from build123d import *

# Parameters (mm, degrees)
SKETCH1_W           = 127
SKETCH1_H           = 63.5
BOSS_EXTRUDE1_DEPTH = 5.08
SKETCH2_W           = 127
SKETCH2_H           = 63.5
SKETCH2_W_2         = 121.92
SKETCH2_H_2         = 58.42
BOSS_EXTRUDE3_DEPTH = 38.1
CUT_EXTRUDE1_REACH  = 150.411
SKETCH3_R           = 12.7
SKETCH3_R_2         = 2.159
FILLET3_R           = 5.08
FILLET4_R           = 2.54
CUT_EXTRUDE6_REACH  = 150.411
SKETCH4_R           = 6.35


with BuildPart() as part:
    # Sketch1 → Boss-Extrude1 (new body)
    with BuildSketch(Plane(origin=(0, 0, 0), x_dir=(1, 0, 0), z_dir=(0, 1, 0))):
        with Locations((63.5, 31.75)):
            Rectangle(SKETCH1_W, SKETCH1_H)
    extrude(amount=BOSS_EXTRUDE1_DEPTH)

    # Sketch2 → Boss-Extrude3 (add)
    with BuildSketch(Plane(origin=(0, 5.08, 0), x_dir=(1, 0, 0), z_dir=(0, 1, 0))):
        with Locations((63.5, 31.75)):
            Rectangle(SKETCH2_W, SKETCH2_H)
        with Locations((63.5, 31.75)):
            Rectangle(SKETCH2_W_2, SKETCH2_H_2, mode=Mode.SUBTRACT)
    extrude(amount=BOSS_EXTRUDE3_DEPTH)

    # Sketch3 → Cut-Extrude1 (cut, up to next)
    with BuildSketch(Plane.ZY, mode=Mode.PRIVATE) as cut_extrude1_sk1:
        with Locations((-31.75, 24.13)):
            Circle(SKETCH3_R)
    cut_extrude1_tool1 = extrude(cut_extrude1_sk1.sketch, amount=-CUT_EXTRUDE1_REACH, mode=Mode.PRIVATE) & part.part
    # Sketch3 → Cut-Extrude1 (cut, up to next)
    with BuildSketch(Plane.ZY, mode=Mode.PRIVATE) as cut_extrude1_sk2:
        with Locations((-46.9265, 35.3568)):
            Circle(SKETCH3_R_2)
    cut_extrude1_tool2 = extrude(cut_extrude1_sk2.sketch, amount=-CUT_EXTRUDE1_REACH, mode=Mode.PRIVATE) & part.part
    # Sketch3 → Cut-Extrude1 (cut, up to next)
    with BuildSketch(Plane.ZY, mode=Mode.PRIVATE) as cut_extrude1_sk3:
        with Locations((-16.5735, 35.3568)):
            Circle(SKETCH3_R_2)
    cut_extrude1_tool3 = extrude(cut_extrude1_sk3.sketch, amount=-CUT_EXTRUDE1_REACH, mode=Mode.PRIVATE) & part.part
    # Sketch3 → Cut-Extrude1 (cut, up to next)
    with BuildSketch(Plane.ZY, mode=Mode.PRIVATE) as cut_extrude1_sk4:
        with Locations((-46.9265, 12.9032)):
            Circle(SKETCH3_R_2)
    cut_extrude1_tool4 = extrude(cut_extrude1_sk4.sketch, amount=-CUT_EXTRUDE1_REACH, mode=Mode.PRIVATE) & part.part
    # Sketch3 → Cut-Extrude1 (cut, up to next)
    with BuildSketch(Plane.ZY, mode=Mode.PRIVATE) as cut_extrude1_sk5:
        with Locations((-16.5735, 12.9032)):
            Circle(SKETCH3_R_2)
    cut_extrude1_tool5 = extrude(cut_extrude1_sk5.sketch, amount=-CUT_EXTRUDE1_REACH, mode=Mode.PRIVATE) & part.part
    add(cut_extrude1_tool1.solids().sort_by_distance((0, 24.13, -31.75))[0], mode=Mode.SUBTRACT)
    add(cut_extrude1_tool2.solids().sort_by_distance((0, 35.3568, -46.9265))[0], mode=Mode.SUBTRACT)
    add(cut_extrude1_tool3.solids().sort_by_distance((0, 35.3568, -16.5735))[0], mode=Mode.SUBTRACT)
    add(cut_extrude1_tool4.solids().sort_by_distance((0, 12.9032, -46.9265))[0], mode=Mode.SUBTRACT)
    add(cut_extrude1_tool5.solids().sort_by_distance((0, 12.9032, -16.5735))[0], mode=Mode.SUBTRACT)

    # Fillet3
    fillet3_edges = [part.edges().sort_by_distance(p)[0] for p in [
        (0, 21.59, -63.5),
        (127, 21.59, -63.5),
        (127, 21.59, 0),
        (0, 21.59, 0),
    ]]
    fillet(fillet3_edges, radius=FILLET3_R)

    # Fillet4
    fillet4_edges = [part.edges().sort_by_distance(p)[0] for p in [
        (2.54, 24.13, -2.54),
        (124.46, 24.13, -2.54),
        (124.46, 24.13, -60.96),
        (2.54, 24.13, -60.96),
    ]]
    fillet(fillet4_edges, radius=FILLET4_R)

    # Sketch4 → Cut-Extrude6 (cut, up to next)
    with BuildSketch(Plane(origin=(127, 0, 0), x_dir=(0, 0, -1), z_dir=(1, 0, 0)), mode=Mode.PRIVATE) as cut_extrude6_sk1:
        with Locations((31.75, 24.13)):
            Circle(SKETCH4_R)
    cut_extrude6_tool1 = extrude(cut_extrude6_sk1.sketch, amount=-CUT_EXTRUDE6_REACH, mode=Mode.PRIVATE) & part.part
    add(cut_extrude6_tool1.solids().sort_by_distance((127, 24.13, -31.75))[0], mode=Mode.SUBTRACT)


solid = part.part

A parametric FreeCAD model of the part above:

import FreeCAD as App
import Part
import Sketcher
from FreeCAD import Vector
Q = App.Units.Quantity


def edges_at(feature, points):
    """Names of the edges that pass closest to the given points."""
    edges = feature.Shape.Edges
    near = lambda p: min(range(len(edges)), key=lambda i: edges[i].distToShape(Part.Vertex(*p))[0])
    return sorted({f"Edge{near(p) + 1}" for p in points})


def add_polygon(sketch, points):
    """Adds a closed chain of lines whose ends are joined by coincident constraints."""
    first, n = sketch.GeometryCount, len(points)
    for a, b in zip(points, points[1:] + points[:1]):
        sketch.addGeometry(Part.LineSegment(App.Vector(*a, 0), App.Vector(*b, 0)), False)
    for i in range(n):
        sketch.addConstraint(Sketcher.Constraint("Coincident", first + i, 2, first + (i + 1) % n, 1))

doc = App.newDocument("Part")
body = doc.addObject("PartDesign::Body", "Body")

sketch1 = doc.addObject("Sketcher::SketchObject", "Sketch")
body.addObject(sketch1)
sketch1.AttachmentSupport = (doc.XZ_Plane, [""])
sketch1.MapMode = "FlatFace"
add_polygon(sketch1, [(0, -64), (0, 0), (127, 0), (127, -64)])
sketch1.addConstraint([
    Sketcher.Constraint("Vertical", 0),
    Sketcher.Constraint("Horizontal", 1),
    Sketcher.Constraint("Vertical", 2),
    Sketcher.Constraint("Horizontal", 3),
    Sketcher.Constraint("Coincident", 0, 2, -1, 1),
    Sketcher.Constraint("DistanceX", 1, 1, 1, 2, Q("5 in")),
    Sketcher.Constraint("DistanceY", 0, 1, 0, 2, Q("2.5 in")),
])
pad1 = doc.addObject("PartDesign::Pad", "Pad")
body.addObject(pad1)
pad1.Profile = sketch1
pad1.Length = Q("0.2 in")
pad1.Reversed = True

sketch2 = doc.addObject("Sketcher::SketchObject", "Sketch001")
body.addObject(sketch2)
sketch2.AttachmentSupport = (doc.XZ_Plane, [""])
sketch2.MapMode = "FlatFace"
sketch2.AttachmentOffset = App.Placement(Vector(0, 0, -0.2 * 25.4), App.Rotation())
add_polygon(sketch2, [(0, -64), (0, 0), (127, 0), (127, -64)])
add_polygon(sketch2, [(124, -3), (3, -3), (3, -61), (124, -61)])
sketch2.addConstraint([
    Sketcher.Constraint("Vertical", 0),
    Sketcher.Constraint("Horizontal", 1),
    Sketcher.Constraint("Vertical", 2),
    Sketcher.Constraint("Horizontal", 3),
    Sketcher.Constraint("Horizontal", 4),
    Sketcher.Constraint("Vertical", 5),
    Sketcher.Constraint("Horizontal", 6),
    Sketcher.Constraint("Vertical", 7),
    Sketcher.Constraint("Coincident", 0, 2, -1, 1),
    Sketcher.Constraint("DistanceX", 1, 1, 1, 2, Q("5 in")),
    Sketcher.Constraint("DistanceX", 4, 2, 4, 1, Q("4.8 in")),
    Sketcher.Constraint("DistanceY", 0, 1, 0, 2, Q("2.5 in")),
    Sketcher.Constraint("DistanceY", 5, 2, 5, 1, Q("2.3 in")),
    Sketcher.Constraint("DistanceX", -1, 1, 4, 2, Q("0.1 in")),
    Sketcher.Constraint("DistanceY", 4, 2, -1, 1, Q("0.1 in")),
])
pad2 = doc.addObject("PartDesign::Pad", "Pad001")
body.addObject(pad2)
pad2.Profile = sketch2
pad2.Length = Q("1.5 in")
pad2.Reversed = True

sketch3 = doc.addObject("Sketcher::SketchObject", "Sketch002")
body.addObject(sketch3)
sketch3.AttachmentSupport = (doc.YZ_Plane, [""])
sketch3.MapMode = "FlatFace"
sketch3.addGeometry(Part.Circle(Vector(24, -32, 0), Vector(0, 0, 1), 13), False)
sketch3.addConstraint([
    Sketcher.Constraint("Diameter", 0, Q("1 in")),
    Sketcher.Constraint("DistanceX", -1, 1, 0, 3, Q("0.95 in")),
    Sketcher.Constraint("DistanceY", 0, 3, -1, 1, Q("1.25 in")),
])
pocket1 = doc.addObject("PartDesign::Pocket", "Pocket")
body.addObject(pocket1)
pocket1.Profile = sketch3
pocket1.Type = "UpToFirst"
pocket1.Reversed = True

sketch4 = doc.addObject("Sketcher::SketchObject", "Sketch003")
body.addObject(sketch4)
sketch4.AttachmentSupport = (doc.YZ_Plane, [""])
sketch4.MapMode = "FlatFace"
sketch4.addGeometry(Part.Circle(Vector(35.4, -46.9, 0), Vector(0, 0, 1), 2.2), False)
sketch4.addConstraint([
    Sketcher.Constraint("Diameter", 0, Q("0.17 in")),
    Sketcher.Constraint("DistanceX", -1, 1, 0, 3, Q("1.392 in")),
    Sketcher.Constraint("DistanceY", 0, 3, -1, 1, Q("1.8475 in")),
])
pocket2 = doc.addObject("PartDesign::Pocket", "Pocket001")
body.addObject(pocket2)
pocket2.Profile = sketch4
pocket2.Type = "UpToFirst"
pocket2.Reversed = True

sketch5 = doc.addObject("Sketcher::SketchObject", "Sketch004")
body.addObject(sketch5)
sketch5.AttachmentSupport = (doc.YZ_Plane, [""])
sketch5.MapMode = "FlatFace"
sketch5.addGeometry(Part.Circle(Vector(35.4, -16.6, 0), Vector(0, 0, 1), 2.2), False)
sketch5.addConstraint([
    Sketcher.Constraint("Diameter", 0, Q("0.17 in")),
    Sketcher.Constraint("DistanceX", -1, 1, 0, 3, Q("1.392 in")),
    Sketcher.Constraint("DistanceY", 0, 3, -1, 1, Q("0.6525 in")),
])
pocket3 = doc.addObject("PartDesign::Pocket", "Pocket002")
body.addObject(pocket3)
pocket3.Profile = sketch5
pocket3.Type = "UpToFirst"
pocket3.Reversed = True

sketch6 = doc.addObject("Sketcher::SketchObject", "Sketch005")
body.addObject(sketch6)
sketch6.AttachmentSupport = (doc.YZ_Plane, [""])
sketch6.MapMode = "FlatFace"
sketch6.addGeometry(Part.Circle(Vector(12.9, -46.9, 0), Vector(0, 0, 1), 2.2), False)
sketch6.addConstraint([
    Sketcher.Constraint("Diameter", 0, Q("0.17 in")),
    Sketcher.Constraint("DistanceX", -1, 1, 0, 3, Q("0.508 in")),
    Sketcher.Constraint("DistanceY", 0, 3, -1, 1, Q("1.8475 in")),
])
pocket4 = doc.addObject("PartDesign::Pocket", "Pocket003")
body.addObject(pocket4)
pocket4.Profile = sketch6
pocket4.Type = "UpToFirst"
pocket4.Reversed = True

sketch7 = doc.addObject("Sketcher::SketchObject", "Sketch006")
body.addObject(sketch7)
sketch7.AttachmentSupport = (doc.YZ_Plane, [""])
sketch7.MapMode = "FlatFace"
sketch7.addGeometry(Part.Circle(Vector(12.9, -16.6, 0), Vector(0, 0, 1), 2.2), False)
sketch7.addConstraint([
    Sketcher.Constraint("Diameter", 0, Q("0.17 in")),
    Sketcher.Constraint("DistanceX", -1, 1, 0, 3, Q("0.508 in")),
    Sketcher.Constraint("DistanceY", 0, 3, -1, 1, Q("0.6525 in")),
])
pocket5 = doc.addObject("PartDesign::Pocket", "Pocket004")
body.addObject(pocket5)
pocket5.Profile = sketch7
pocket5.Type = "UpToFirst"
pocket5.Reversed = True
doc.recompute()

fillet = doc.addObject("PartDesign::Fillet", "Fillet")
body.addObject(fillet)
fillet.Base = (pocket5, edges_at(pocket5, [
    (0, 21.59, -63.5),
    (127, 21.59, -63.5),
    (127, 21.59, 0),
    (0, 21.59, 0),
]))
fillet.Radius = Q("0.2 in")
doc.recompute()

fillet2 = doc.addObject("PartDesign::Fillet", "Fillet001")
body.addObject(fillet2)
fillet2.Base = (fillet, edges_at(fillet, [
    (2.54, 24.13, -2.54),
    (124.46, 24.13, -2.54),
    (124.46, 24.13, -60.96),
    (2.54, 24.13, -60.96),
]))
fillet2.Radius = Q("0.1 in")

sketch8 = doc.addObject("Sketcher::SketchObject", "Sketch007")
body.addObject(sketch8)
sketch8.AttachmentSupport = (doc.YZ_Plane, [""])
sketch8.MapMode = "FlatFace"
sketch8.AttachmentOffset = App.Placement(Vector(0, 0, 5 * 25.4), App.Rotation())
sketch8.addGeometry(Part.Circle(Vector(24, -32, 0), Vector(0, 0, 1), 6), False)
sketch8.addConstraint([
    Sketcher.Constraint("Diameter", 0, Q("0.5 in")),
    Sketcher.Constraint("DistanceX", -1, 1, 0, 3, Q("0.95 in")),
    Sketcher.Constraint("DistanceY", 0, 3, -1, 1, Q("1.25 in")),
])
pocket6 = doc.addObject("PartDesign::Pocket", "Pocket005")
body.addObject(pocket6)
pocket6.Profile = sketch8
pocket6.Type = "UpToFirst"

doc.recompute()
